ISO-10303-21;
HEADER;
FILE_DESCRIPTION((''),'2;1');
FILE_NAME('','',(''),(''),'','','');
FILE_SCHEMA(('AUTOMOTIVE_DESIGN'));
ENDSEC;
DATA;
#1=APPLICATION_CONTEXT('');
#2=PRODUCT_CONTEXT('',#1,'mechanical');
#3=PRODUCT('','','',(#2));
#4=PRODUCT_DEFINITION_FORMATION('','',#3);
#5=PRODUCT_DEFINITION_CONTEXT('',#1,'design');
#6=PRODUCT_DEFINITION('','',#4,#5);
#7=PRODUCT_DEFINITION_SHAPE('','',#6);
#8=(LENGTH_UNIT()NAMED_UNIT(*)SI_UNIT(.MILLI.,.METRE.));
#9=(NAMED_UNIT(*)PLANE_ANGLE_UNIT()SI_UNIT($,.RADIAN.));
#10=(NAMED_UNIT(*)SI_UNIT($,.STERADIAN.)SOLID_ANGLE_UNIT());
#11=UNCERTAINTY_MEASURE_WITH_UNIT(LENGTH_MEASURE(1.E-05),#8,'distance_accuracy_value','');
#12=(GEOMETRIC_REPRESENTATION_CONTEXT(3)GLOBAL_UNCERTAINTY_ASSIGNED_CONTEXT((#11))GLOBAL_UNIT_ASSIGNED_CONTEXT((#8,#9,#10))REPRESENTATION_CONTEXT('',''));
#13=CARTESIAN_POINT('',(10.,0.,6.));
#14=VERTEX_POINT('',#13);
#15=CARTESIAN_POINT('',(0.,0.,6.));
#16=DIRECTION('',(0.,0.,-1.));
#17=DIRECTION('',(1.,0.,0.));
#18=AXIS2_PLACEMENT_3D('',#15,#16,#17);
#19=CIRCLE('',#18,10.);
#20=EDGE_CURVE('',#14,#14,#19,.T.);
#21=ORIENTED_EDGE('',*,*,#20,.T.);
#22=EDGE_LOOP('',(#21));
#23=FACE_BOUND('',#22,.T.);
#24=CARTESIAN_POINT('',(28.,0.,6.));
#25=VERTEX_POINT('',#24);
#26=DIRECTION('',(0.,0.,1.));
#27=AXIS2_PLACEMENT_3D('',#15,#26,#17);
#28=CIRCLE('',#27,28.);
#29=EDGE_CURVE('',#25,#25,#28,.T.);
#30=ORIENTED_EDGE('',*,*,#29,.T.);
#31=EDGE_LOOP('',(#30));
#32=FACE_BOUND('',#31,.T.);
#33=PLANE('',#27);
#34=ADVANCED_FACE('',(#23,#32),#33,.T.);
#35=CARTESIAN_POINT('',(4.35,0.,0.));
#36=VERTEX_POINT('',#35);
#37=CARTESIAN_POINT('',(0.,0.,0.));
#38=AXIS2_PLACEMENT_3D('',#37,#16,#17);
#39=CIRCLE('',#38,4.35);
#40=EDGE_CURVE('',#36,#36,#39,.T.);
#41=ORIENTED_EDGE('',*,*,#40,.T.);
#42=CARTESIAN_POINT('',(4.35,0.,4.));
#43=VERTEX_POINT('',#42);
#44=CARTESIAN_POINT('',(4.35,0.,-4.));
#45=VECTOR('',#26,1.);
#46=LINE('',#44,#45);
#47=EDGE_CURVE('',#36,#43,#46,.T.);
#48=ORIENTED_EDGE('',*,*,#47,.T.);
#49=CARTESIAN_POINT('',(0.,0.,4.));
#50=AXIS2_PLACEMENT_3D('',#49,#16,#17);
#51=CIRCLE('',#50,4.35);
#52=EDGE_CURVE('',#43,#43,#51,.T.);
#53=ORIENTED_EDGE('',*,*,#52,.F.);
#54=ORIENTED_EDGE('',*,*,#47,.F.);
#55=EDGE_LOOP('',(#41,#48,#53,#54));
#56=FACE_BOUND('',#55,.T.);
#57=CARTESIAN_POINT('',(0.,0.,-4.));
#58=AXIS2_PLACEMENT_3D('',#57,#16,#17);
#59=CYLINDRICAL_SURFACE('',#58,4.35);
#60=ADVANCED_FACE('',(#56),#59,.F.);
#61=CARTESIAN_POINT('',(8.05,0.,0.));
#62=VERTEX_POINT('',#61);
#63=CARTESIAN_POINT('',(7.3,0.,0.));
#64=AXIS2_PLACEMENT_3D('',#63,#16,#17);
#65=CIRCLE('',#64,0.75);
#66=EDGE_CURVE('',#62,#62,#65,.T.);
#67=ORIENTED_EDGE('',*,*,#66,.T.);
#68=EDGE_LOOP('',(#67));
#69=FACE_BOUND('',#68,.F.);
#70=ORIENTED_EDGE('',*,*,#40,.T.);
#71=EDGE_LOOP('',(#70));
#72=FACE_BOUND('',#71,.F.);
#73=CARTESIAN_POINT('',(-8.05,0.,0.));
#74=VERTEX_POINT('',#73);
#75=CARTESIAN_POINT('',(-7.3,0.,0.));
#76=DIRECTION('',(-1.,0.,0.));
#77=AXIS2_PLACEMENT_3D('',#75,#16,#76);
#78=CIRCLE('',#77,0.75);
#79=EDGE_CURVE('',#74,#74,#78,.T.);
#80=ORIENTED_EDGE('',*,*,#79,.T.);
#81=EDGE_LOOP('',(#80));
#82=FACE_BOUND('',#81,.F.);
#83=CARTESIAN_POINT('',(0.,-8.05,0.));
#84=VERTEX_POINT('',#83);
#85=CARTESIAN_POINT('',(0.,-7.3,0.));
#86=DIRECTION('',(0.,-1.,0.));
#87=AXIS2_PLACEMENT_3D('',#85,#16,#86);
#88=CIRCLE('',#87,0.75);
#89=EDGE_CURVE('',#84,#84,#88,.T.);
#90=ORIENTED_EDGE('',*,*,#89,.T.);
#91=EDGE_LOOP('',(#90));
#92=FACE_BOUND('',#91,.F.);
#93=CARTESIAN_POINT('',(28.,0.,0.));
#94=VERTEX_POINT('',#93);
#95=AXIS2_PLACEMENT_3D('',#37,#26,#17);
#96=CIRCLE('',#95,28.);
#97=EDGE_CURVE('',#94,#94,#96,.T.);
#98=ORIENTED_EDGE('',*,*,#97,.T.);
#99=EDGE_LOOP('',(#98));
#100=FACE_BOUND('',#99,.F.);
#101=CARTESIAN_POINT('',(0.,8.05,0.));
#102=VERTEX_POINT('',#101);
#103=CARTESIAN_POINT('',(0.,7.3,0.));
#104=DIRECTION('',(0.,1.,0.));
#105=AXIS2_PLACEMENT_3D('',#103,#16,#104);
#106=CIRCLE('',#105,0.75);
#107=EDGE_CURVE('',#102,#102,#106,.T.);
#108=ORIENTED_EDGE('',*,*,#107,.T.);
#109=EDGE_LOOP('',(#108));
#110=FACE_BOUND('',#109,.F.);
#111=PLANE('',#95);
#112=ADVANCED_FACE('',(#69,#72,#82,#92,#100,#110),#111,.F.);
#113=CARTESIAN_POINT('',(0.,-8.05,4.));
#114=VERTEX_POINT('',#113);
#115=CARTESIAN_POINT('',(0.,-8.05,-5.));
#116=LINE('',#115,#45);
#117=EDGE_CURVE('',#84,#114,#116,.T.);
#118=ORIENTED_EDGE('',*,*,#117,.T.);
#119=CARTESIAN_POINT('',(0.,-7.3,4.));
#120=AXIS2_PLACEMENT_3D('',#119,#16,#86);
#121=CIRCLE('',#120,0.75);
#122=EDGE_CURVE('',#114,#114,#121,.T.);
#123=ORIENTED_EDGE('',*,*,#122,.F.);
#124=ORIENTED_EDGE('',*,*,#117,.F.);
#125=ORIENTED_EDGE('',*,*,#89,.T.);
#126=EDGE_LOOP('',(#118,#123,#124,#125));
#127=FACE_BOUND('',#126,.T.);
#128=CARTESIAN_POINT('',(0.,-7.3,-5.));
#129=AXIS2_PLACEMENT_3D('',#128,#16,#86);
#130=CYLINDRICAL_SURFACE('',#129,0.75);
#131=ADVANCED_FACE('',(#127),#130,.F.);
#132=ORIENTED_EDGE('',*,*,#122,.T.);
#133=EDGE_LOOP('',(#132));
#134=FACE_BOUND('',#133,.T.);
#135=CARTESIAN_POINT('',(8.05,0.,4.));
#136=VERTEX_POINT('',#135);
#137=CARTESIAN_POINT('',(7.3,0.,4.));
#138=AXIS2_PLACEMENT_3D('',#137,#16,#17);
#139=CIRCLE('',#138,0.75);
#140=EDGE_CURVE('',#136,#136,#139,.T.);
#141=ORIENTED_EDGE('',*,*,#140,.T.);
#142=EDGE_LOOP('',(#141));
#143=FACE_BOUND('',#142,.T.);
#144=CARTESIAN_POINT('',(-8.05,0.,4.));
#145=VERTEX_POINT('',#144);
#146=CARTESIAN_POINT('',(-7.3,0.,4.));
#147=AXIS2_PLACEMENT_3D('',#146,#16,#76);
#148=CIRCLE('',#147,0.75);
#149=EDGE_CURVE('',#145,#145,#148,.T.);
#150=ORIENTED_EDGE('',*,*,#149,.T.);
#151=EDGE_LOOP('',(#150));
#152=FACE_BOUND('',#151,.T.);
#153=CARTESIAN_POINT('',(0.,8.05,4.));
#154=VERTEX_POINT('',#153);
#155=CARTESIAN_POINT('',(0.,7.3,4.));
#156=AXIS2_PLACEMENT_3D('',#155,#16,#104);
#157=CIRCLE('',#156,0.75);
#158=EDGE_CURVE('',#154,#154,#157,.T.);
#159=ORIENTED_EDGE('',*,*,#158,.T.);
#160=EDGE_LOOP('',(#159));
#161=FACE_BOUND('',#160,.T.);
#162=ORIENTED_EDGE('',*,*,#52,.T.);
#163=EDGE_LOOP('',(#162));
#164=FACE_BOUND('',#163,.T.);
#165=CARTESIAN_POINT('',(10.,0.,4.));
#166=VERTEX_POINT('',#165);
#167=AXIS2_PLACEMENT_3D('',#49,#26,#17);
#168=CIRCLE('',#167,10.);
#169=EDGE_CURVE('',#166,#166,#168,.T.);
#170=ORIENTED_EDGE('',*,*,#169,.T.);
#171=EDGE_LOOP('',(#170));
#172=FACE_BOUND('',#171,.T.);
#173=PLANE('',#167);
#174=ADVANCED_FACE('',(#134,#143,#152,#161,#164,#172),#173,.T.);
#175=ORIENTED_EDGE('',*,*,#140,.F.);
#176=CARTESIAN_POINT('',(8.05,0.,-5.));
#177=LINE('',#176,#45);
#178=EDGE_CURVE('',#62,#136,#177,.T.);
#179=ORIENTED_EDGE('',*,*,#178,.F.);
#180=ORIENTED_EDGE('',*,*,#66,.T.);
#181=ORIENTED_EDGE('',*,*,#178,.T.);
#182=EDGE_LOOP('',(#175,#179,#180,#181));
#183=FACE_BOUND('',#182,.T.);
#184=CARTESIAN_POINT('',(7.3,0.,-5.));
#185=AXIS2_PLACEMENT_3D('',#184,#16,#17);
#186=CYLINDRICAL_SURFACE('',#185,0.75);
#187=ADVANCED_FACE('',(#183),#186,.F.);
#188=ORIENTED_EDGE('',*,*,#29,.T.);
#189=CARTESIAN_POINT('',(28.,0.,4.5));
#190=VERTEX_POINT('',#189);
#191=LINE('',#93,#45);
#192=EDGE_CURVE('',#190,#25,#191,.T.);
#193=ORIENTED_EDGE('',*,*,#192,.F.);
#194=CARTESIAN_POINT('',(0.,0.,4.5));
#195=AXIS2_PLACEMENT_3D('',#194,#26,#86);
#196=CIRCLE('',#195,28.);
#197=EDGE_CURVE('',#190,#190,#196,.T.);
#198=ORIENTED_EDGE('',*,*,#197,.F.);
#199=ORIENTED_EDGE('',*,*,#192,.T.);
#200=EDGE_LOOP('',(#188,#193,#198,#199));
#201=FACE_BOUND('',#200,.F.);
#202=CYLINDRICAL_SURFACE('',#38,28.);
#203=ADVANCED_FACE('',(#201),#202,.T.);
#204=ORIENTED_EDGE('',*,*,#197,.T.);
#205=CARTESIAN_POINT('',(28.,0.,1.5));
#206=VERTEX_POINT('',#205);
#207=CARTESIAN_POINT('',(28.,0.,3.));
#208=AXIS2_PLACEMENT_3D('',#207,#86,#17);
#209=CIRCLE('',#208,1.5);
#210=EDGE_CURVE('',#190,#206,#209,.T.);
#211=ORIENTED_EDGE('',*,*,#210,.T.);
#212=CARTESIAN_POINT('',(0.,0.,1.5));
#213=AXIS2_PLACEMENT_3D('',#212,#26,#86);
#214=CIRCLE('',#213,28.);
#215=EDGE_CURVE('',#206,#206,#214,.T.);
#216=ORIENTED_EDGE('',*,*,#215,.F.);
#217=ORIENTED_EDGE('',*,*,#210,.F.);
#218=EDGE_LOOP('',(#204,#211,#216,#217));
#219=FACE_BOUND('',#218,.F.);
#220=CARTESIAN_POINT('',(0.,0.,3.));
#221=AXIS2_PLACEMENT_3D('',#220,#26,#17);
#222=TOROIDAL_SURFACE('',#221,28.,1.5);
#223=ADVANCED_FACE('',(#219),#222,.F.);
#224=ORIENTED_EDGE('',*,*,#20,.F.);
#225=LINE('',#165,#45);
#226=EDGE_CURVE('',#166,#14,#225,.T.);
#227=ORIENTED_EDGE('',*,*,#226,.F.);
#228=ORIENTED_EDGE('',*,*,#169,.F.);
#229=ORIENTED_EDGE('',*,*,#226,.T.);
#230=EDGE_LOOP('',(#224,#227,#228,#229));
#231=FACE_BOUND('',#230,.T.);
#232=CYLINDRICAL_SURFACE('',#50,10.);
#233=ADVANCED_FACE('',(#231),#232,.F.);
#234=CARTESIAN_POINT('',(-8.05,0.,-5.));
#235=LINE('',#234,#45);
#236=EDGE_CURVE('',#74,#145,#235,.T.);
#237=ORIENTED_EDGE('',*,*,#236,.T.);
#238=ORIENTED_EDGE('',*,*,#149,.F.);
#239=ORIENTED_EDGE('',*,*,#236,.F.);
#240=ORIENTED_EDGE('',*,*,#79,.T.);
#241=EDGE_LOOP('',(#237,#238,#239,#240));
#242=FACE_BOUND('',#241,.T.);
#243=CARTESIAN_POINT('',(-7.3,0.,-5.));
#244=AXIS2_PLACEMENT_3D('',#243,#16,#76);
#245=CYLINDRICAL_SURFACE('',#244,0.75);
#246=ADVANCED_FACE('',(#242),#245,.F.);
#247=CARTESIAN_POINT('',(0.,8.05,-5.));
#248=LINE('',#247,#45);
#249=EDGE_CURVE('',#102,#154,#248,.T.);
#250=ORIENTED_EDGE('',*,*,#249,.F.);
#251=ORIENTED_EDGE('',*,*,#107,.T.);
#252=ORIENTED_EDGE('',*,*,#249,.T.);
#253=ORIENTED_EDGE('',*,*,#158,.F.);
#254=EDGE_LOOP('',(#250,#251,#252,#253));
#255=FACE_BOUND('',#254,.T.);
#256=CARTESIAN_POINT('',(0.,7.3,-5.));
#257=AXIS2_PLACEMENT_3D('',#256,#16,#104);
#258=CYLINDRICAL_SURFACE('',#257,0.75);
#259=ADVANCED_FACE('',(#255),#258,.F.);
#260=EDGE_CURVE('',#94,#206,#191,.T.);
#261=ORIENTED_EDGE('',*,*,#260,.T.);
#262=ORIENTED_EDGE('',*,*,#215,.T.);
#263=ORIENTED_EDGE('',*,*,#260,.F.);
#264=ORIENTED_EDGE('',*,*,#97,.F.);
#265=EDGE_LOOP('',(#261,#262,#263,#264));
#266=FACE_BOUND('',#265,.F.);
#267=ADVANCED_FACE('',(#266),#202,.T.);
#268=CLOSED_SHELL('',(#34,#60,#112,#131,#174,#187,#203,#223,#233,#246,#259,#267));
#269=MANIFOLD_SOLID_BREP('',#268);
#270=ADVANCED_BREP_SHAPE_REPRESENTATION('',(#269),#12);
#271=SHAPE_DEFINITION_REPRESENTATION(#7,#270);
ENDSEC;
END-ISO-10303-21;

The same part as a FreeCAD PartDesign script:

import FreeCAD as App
import Part
import Sketcher
from FreeCAD import Vector
Q = App.Units.Quantity

doc = App.newDocument("Part")
body = doc.addObject("PartDesign::Body", "Body")

sketch1 = doc.addObject("Sketcher::SketchObject", "Sketch")
body.addObject(sketch1)
sketch1.AttachmentSupport = (doc.XY_Plane, [""])
sketch1.MapMode = "FlatFace"
sketch1.AttachmentOffset = App.Placement(Vector(0, 0, -5), App.Rotation())
sketch1.addGeometry(Part.Circle(Vector(7.3, 0, 0), Vector(0, 0, 1), 0.8), False)
sketch1.addConstraint([
    Sketcher.Constraint("PointOnObject", 0, 3, -1),
    Sketcher.Constraint("Diameter", 0, Q("1.5 mm")),
    Sketcher.Constraint("DistanceX", -1, 1, 0, 3, Q("7.3 mm")),
])
pad1 = doc.addObject("PartDesign::Pad", "Pad")
body.addObject(pad1)
pad1.Profile = sketch1
pad1.Length = 10
body2 = doc.addObject("PartDesign::Body", "Body001")
body2.AllowCompound = True
doc.recompute()

body2.BaseFeature = body
doc.recompute()

body3 = doc.addObject("PartDesign::Body", "Body002")
body3.BaseFeature = body
body3.Placement = App.Placement(Vector(0, 0, 0), App.Rotation(Vector(0, 0, 1), 90))
boolean = doc.addObject("PartDesign::Boolean", "Boolean")
body2.addObject(boolean)
boolean.Type = "Fuse"
boolean.addObjects([body3])
doc.recompute()

body4 = doc.addObject("PartDesign::Body", "Body003")
body4.BaseFeature = body
body4.Placement = App.Placement(Vector(0, 0, 0), App.Rotation(Vector(0, 0, 1), 180))
boolean2 = doc.addObject("PartDesign::Boolean", "Boolean001")
body2.addObject(boolean2)
boolean2.Type = "Fuse"
boolean2.addObjects([body4])
doc.recompute()

body.Placement = App.Placement(Vector(0, 0, 0), App.Rotation(Vector(0, 0, 1), 270))
boolean3 = doc.addObject("PartDesign::Boolean", "Boolean002")
body2.addObject(boolean3)
boolean3.Type = "Fuse"
boolean3.addObjects([body])
body5 = doc.addObject("PartDesign::Body", "Body004")

sketch2 = doc.addObject("Sketcher::SketchObject", "Sketch001")
body5.addObject(sketch2)
sketch2.AttachmentSupport = (doc.getObject("XY_Plane004"), [""])
sketch2.MapMode = "FlatFace"
sketch2.AttachmentOffset = App.Placement(Vector(0, 0, -4), App.Rotation())
sketch2.addGeometry(Part.Circle(Vector(0, 0, 0), Vector(0, 0, 1), 4.3), False)
sketch2.addConstraint([
    Sketcher.Constraint("Coincident", 0, 3, -1, 1),
    Sketcher.Constraint("Diameter", 0, Q("8.7 mm")),
])
pad2 = doc.addObject("PartDesign::Pad", "Pad001")
body5.addObject(pad2)
pad2.Profile = sketch2
pad2.Length = 10
body6 = doc.addObject("PartDesign::Body", "Body005")

sketch3 = doc.addObject("Sketcher::SketchObject", "Sketch002")
body6.addObject(sketch3)
sketch3.AttachmentSupport = (doc.getObject("XY_Plane005"), [""])
sketch3.MapMode = "FlatFace"
sketch3.AttachmentOffset = App.Placement(Vector(0, 0, 4), App.Rotation())
sketch3.addGeometry(Part.Circle(Vector(0, 0, 0), Vector(0, 0, 1), 10), False)
sketch3.addConstraint([
    Sketcher.Constraint("Coincident", 0, 3, -1, 1),
    Sketcher.Constraint("Diameter", 0, Q("20 mm")),
])
pad3 = doc.addObject("PartDesign::Pad", "Pad002")
body6.addObject(pad3)
pad3.Profile = sketch3
pad3.Length = 10
body7 = doc.addObject("PartDesign::Body", "Body006")

sketch4 = doc.addObject("Sketcher::SketchObject", "Sketch003")
body7.addObject(sketch4)
sketch4.AttachmentSupport = (doc.getObject("XZ_Plane006"), [""])
sketch4.MapMode = "FlatFace"
sketch4.addGeometry(Part.Circle(Vector(28, 3, 0), Vector(0, 0, 1), 1.5), False)
sketch4.addConstraint([
    Sketcher.Constraint("Diameter", 0, Q("3 mm")),
    Sketcher.Constraint("DistanceX", -1, 1, 0, 3, Q("28 mm")),
    Sketcher.Constraint("DistanceY", -1, 1, 0, 3, Q("3 mm")),
])
revolution = doc.addObject("PartDesign::Revolution", "Revolution")
body7.addObject(revolution)
revolution.Profile = sketch4
revolution.ReferenceAxis = (sketch4, ["V_Axis"])
revolution.Angle = 360
body8 = doc.addObject("PartDesign::Body", "Body007")

sketch5 = doc.addObject("Sketcher::SketchObject", "Sketch004")
body8.addObject(sketch5)
sketch5.AttachmentSupport = (doc.getObject("XY_Plane007"), [""])
sketch5.MapMode = "FlatFace"
sketch5.addGeometry(Part.Circle(Vector(0, 0, 0), Vector(0, 0, 1), 28), False)
sketch5.addConstraint([
    Sketcher.Constraint("Coincident", 0, 3, -1, 1),
    Sketcher.Constraint("Diameter", 0, Q("56 mm")),
])
pad4 = doc.addObject("PartDesign::Pad", "Pad003")
body8.addObject(pad4)
pad4.Profile = sketch5
pad4.Length = 6
doc.recompute()

boolean4 = doc.addObject("PartDesign::Boolean", "Boolean003")
body8.addObject(boolean4)
boolean4.Type = "Cut"
boolean4.addObjects([body7])
doc.recompute()

boolean5 = doc.addObject("PartDesign::Boolean", "Boolean004")
body8.addObject(boolean5)
boolean5.Type = "Cut"
boolean5.addObjects([body6])
doc.recompute()

boolean6 = doc.addObject("PartDesign::Boolean", "Boolean005")
body8.addObject(boolean6)
boolean6.Type = "Cut"
boolean6.addObjects([body5])
doc.recompute()

boolean7 = doc.addObject("PartDesign::Boolean", "Boolean006")
body8.addObject(boolean7)
boolean7.Type = "Cut"
boolean7.addObjects([body2])

doc.recompute()
